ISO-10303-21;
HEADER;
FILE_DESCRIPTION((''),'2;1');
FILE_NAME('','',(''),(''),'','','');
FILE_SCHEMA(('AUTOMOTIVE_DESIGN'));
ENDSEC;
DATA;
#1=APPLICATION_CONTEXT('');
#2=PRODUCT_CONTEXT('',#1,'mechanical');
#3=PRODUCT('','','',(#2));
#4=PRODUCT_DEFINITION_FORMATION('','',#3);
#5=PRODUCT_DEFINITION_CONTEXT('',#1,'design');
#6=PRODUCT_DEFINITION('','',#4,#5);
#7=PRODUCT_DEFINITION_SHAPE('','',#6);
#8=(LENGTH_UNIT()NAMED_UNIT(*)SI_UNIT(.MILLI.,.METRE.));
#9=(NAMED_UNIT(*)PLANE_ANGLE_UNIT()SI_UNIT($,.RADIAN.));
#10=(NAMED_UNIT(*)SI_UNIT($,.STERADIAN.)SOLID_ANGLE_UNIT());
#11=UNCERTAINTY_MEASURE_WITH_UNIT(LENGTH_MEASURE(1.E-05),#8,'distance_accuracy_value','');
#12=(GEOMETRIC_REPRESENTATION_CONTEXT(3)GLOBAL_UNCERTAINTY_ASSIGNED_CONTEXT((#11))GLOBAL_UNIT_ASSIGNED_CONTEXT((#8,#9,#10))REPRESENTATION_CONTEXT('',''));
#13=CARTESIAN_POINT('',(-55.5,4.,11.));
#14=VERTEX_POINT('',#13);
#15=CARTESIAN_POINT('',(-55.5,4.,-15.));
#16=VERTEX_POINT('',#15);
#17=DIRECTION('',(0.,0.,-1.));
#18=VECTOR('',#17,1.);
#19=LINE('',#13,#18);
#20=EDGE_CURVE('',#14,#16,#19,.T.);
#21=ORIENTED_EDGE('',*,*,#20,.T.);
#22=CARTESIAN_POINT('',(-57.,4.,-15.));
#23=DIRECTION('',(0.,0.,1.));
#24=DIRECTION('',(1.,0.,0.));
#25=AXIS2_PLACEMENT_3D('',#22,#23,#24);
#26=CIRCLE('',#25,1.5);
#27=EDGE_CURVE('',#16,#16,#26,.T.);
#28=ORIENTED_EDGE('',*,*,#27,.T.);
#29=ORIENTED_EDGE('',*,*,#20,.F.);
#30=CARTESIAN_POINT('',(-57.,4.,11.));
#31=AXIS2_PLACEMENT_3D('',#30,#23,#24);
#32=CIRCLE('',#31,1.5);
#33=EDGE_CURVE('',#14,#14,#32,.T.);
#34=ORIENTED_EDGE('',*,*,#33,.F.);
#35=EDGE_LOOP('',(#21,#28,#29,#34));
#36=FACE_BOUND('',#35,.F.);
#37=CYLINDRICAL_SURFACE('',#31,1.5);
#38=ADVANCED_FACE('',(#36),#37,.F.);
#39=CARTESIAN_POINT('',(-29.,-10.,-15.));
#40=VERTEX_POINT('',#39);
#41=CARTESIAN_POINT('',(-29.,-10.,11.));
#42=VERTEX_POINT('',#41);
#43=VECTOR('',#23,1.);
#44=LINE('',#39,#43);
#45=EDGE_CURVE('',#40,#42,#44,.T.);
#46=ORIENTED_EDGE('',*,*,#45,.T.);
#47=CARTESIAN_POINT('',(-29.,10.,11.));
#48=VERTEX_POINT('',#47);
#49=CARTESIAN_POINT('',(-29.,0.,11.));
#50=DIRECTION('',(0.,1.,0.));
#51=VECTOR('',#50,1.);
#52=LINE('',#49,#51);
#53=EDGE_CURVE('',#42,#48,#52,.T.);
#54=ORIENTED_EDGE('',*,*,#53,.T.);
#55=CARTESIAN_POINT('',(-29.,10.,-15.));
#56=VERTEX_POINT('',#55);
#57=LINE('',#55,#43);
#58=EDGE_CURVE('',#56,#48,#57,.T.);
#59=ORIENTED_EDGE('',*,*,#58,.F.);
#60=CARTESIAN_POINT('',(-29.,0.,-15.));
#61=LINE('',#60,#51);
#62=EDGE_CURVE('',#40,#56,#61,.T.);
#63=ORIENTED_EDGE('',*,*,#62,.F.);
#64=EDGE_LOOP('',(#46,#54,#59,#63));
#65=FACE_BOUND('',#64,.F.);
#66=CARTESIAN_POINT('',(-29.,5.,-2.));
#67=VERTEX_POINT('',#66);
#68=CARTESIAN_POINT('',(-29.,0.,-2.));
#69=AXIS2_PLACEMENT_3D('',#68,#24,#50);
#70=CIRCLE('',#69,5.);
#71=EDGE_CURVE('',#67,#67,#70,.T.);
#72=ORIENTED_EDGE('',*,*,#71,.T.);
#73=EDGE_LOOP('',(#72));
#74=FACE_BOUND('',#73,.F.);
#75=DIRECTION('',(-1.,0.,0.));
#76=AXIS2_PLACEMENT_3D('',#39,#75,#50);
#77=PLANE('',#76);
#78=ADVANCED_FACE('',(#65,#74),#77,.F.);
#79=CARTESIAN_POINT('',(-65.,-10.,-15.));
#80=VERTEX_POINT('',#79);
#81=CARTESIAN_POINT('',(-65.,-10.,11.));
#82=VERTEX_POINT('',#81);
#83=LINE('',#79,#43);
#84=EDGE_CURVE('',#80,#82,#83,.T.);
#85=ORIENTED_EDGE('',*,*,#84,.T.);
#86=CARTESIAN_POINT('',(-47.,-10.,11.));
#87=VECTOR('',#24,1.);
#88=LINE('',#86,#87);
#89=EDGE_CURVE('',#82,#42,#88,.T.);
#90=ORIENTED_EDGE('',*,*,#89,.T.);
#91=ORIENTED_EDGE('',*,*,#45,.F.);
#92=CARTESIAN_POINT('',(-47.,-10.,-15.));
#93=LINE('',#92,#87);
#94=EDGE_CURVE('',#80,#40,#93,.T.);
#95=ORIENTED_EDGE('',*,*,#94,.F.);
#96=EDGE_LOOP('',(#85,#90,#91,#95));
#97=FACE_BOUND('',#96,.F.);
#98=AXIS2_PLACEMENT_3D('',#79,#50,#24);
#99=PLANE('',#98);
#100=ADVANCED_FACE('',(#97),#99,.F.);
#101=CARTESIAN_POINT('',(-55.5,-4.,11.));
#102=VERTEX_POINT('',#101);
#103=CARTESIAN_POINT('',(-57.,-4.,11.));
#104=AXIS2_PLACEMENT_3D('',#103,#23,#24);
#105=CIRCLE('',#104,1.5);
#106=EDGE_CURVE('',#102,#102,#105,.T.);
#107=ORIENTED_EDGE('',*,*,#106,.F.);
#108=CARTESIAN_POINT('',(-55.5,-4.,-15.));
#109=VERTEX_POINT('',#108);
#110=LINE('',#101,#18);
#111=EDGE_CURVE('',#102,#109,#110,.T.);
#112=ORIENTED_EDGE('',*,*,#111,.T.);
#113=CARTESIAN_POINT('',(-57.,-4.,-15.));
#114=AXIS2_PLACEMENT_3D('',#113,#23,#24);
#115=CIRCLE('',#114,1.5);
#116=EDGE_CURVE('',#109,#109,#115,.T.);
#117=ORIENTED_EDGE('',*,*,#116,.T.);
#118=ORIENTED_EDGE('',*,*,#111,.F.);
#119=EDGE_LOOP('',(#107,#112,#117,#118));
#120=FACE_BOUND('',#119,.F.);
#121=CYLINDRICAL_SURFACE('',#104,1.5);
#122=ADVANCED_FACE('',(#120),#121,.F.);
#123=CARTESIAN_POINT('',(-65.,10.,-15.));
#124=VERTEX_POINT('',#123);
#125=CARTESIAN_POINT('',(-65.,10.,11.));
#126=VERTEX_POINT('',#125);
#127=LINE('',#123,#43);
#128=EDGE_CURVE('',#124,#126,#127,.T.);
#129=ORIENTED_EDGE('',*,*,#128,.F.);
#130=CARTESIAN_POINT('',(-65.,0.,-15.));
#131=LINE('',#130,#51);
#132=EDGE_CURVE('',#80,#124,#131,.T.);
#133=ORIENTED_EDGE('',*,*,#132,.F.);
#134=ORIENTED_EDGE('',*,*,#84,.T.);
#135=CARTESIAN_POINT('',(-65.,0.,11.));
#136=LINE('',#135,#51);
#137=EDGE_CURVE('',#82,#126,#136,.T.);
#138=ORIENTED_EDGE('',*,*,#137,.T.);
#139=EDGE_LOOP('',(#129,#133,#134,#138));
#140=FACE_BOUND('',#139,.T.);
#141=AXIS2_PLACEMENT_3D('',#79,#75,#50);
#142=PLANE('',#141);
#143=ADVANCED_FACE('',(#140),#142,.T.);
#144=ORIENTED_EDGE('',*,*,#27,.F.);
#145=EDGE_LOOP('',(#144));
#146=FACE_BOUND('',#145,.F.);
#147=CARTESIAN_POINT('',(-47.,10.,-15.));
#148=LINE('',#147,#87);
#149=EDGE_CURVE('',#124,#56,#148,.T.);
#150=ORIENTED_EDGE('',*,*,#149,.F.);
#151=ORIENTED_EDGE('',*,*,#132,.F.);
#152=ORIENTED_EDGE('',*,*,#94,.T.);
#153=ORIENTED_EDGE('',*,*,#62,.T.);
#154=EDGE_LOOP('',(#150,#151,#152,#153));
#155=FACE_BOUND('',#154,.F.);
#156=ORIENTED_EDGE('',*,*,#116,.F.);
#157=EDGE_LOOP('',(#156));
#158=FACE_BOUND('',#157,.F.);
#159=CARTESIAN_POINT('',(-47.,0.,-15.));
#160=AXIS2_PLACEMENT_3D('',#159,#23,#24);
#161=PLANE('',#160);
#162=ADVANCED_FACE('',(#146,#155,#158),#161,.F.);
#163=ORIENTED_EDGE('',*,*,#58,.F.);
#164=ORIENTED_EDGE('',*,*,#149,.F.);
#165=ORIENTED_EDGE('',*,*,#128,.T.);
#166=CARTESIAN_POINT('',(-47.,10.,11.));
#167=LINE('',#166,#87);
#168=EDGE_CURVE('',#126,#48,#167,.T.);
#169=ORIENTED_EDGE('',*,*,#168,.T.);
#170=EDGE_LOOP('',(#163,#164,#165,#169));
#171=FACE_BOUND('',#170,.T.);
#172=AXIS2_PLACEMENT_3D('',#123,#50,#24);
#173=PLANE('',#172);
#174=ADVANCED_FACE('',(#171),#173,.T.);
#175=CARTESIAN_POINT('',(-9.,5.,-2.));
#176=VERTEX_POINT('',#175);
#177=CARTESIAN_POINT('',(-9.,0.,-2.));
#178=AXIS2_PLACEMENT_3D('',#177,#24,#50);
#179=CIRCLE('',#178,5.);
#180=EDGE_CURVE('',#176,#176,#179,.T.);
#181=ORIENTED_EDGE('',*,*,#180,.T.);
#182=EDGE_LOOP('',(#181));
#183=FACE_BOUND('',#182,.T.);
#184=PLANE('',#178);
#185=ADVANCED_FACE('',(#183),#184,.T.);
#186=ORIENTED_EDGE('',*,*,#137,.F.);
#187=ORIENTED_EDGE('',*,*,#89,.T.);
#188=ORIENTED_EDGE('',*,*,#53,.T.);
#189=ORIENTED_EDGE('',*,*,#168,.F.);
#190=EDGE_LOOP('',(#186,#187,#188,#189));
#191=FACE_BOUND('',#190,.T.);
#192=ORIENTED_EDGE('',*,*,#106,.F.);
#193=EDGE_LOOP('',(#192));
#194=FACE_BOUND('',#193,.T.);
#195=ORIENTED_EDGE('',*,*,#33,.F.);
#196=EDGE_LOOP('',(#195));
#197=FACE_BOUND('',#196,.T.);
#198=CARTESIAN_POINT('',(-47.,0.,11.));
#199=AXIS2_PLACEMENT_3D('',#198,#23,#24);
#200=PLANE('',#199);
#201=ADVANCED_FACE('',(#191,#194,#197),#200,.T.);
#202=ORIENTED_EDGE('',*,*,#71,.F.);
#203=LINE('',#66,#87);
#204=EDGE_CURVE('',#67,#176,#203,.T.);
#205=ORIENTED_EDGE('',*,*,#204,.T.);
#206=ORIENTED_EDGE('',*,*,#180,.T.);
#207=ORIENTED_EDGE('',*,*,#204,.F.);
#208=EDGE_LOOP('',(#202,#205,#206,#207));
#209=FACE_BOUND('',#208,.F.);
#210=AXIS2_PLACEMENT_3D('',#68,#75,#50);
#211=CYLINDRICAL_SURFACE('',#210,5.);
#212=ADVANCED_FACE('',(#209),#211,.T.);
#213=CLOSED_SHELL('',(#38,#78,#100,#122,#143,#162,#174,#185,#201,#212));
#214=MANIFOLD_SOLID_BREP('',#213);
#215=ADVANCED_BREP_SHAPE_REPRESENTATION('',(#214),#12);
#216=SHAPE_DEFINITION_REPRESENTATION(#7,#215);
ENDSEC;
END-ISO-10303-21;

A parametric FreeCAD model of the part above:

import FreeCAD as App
import Part
import Sketcher

V = App.Vector

doc = App.newDocument("Part")
body = doc.addObject("PartDesign::Body", "Body")

# Sketch on XY plane
sketch1 = doc.addObject("Sketcher::SketchObject", "Sketch")
body.addObject(sketch1)
sketch1.AttachmentSupport = (doc.XY_Plane, [""])
sketch1.MapMode = "FlatFace"
sketch1.addGeometry(Part.LineSegment(V(-64, 10, 0), V(-64, -10, 0)), False)
sketch1.addGeometry(Part.LineSegment(V(-64, -10, 0), V(-28, -10, 0)), False)
sketch1.addGeometry(Part.LineSegment(V(-28, -10, 0), V(-28, 10, 0)), False)
sketch1.addGeometry(Part.LineSegment(V(-28, 10, 0), V(-64, 10, 0)), False)
sketch1.addConstraint(Sketcher.Constraint("Coincident", 0, 2, 1, 1))
sketch1.addConstraint(Sketcher.Constraint("Coincident", 1, 2, 2, 1))
sketch1.addConstraint(Sketcher.Constraint("Coincident", 2, 2, 3, 1))
sketch1.addConstraint(Sketcher.Constraint("Coincident", 3, 2, 0, 1))
sketch1.addConstraint(Sketcher.Constraint("Vertical", 0))
sketch1.addConstraint(Sketcher.Constraint("Horizontal", 1))
sketch1.addConstraint(Sketcher.Constraint("Vertical", 2))
sketch1.addConstraint(Sketcher.Constraint("Horizontal", 3))
sketch1.addConstraint(Sketcher.Constraint("DistanceX", 1, 1, 1, 2, 36.0))
sketch1.addConstraint(Sketcher.Constraint("DistanceY", 0, 2, 0, 1, 20.0))
sketch1.addConstraint(Sketcher.Constraint("DistanceX", 0, 2, -1, 1, 64.0))
sketch1.addConstraint(Sketcher.Constraint("DistanceY", 0, 2, -1, 1, 10.0))
pad1 = doc.addObject("PartDesign::Pad", "Pad")
body.addObject(pad1)
pad1.Profile = sketch1
pad1.Length = 26

# Sketch on YZ plane
sketch2 = doc.addObject("Sketcher::SketchObject", "Sketch001")
body.addObject(sketch2)
sketch2.AttachmentSupport = (doc.YZ_Plane, [""])
sketch2.MapMode = "FlatFace"
sketch2.AttachmentOffset = App.Placement(V(0, 0, -28), App.Rotation())
sketch2.addGeometry(Part.Circle(V(0, 13, 0), V(0, 0, 1), 5), False)
sketch2.addConstraint(Sketcher.Constraint("PointOnObject", 0, 3, -2))
sketch2.addConstraint(Sketcher.Constraint("Diameter", 0, 10.0))
sketch2.addConstraint(Sketcher.Constraint("DistanceY", -1, 1, 0, 3, 13.0))
pad2 = doc.addObject("PartDesign::Pad", "Pad001")
body.addObject(pad2)
pad2.Profile = sketch2
pad2.Length = 20

# Sketch on XY plane
sketch3 = doc.addObject("Sketcher::SketchObject", "Sketch002")
body.addObject(sketch3)
sketch3.AttachmentSupport = (doc.XY_Plane, [""])
sketch3.MapMode = "FlatFace"
sketch3.AttachmentOffset = App.Placement(V(0, 0, 26), App.Rotation())
sketch3.addGeometry(Part.Circle(V(-56, 4, 0), V(0, 0, 1), 1.5), False)
sketch3.addGeometry(Part.Circle(V(-56, -4, 0), V(0, 0, 1), 1.5), False)
sketch3.addConstraint(Sketcher.Constraint("Equal", 0, 1))
sketch3.addConstraint(Sketcher.Constraint("Symmetric", 0, 3, 1, 3, -1))
sketch3.addConstraint(Sketcher.Constraint("Diameter", 0, 3.0))
sketch3.addConstraint(Sketcher.Constraint("DistanceX", 0, 3, -1, 1, 56.0))
sketch3.addConstraint(Sketcher.Constraint("DistanceY", -1, 1, 0, 3, 4.0))
pocket1 = doc.addObject("PartDesign::Pocket", "Pocket")
body.addObject(pocket1)
pocket1.Profile = sketch3
pocket1.Type = "ThroughAll"
body2 = doc.addObject("PartDesign::Body", "Body001")
doc.recompute()

body.Placement = App.Placement(V(-1, 0, -15), App.Rotation(V(0, 0, 1), 0))
boolean = doc.addObject("PartDesign::Boolean", "Boolean")
body2.addObject(boolean)
boolean.Type = "Fuse"
boolean.addObjects([body])

doc.recompute()
